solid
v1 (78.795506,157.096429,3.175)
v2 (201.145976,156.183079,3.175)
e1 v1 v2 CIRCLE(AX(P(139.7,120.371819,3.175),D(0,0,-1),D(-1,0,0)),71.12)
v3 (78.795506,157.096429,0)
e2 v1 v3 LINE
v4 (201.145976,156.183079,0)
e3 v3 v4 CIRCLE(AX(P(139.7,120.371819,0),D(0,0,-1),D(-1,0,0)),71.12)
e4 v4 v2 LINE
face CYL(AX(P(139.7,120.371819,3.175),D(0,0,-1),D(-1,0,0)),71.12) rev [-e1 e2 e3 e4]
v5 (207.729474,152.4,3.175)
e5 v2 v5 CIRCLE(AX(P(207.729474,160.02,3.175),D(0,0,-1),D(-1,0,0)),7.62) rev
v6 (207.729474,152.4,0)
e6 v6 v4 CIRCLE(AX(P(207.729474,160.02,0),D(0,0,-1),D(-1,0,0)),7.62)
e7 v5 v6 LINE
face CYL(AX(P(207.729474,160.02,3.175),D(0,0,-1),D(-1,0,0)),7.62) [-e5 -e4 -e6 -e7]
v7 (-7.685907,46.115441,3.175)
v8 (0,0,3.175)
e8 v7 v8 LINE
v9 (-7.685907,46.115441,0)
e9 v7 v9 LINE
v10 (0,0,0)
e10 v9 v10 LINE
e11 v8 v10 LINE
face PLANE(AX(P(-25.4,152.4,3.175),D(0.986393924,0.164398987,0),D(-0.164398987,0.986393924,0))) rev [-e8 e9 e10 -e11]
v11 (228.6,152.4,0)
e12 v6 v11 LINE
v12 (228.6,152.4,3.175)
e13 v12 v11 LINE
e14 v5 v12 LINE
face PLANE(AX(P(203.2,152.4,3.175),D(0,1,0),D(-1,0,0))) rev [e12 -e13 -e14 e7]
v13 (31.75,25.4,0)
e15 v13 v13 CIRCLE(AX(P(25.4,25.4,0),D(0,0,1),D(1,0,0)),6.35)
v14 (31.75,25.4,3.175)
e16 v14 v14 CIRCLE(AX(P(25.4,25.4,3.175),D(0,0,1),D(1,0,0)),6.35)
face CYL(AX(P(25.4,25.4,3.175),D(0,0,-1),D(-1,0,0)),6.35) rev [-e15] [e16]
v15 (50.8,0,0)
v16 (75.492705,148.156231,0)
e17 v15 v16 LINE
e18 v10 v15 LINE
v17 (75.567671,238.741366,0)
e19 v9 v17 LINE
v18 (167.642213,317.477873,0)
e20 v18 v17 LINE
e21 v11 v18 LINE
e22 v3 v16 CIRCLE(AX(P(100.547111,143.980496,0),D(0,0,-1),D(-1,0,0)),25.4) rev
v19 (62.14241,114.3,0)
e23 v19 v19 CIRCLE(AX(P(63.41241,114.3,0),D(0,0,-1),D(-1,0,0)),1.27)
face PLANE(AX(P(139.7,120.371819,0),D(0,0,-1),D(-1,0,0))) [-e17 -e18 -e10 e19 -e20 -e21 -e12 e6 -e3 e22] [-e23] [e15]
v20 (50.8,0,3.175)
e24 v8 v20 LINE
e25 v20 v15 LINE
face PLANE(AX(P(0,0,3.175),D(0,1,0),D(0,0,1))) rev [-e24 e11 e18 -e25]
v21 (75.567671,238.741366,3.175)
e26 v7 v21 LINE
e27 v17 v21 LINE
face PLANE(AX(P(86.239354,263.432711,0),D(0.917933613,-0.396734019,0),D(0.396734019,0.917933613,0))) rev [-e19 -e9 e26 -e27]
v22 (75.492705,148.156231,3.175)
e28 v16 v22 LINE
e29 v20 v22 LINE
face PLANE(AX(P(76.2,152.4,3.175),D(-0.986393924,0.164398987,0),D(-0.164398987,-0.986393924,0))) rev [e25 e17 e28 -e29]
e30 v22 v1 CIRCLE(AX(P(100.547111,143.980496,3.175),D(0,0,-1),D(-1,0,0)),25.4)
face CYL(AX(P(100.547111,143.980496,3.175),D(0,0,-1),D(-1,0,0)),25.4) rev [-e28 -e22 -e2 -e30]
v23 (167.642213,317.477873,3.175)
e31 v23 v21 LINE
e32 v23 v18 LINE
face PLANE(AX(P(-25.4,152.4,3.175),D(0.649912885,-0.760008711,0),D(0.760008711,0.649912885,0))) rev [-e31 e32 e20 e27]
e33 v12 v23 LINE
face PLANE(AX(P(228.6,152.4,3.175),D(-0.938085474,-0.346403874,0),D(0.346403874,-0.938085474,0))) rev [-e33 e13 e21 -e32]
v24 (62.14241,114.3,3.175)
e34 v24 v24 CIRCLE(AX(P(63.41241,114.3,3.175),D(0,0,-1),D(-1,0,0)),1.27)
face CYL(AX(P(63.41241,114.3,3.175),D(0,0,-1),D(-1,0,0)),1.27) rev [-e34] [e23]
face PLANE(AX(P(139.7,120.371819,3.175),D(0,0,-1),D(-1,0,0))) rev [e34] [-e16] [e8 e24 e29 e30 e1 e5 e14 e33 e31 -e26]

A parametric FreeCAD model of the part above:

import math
import FreeCAD as App
import Part
import Sketcher
Q = App.Units.Quantity


def edges_at(feature, points):
    """Names of the edges that pass closest to the given points."""
    edges = feature.Shape.Edges
    near = lambda p: min(range(len(edges)), key=lambda i: edges[i].distToShape(Part.Vertex(*p))[0])
    return sorted({f"Edge{near(p) + 1}" for p in points})

doc = App.newDocument("Part")
params = doc.addObject("Spreadsheet::Sheet", "Params")
for row, (alias, value) in enumerate([
    ("sketch1_diameter", "0.5 in"),
    ("sketch1_radius", "2.8 in"),
    ("sketch1_width", "2 in"),
    ("sketch1_width2", "1 in"),
    ("sketch1_length", "10 in"),
    ("pad1_length", "0.125 in"),
    ("fillet_radius", "0.3 in"),
    ("fillet2_radius", "1 in"),
    ("sketch3_diameter", "0.1 in"),
], start=1):
    params.set(f"A{row}", alias)
    params.set(f"B{row}", "=" + value)
    params.setAlias(f"B{row}", alias)

body = doc.addObject("PartDesign::Body", "Body")

# Sketch on XY plane
sketch1 = body.newObject("Sketcher::SketchObject", "Sketch")
sketch1.AttachmentSupport = (doc.getObject("XY_Plane"), [""])
sketch1.MapMode = "FlatFace"
sketch1.addGeometry(Part.LineSegment(App.Vector(0, 0, 0), App.Vector(51, 0, 0)), False)
sketch1.addGeometry(Part.LineSegment(App.Vector(51, 0, 0), App.Vector(76, 152, 0)), False)
sketch1.addGeometry(Part.ArcOfCircle(Part.Circle(App.Vector(140, 120, 0), App.Vector(0, 0, 1), 71), math.radians(27), math.radians(153)), False)
sketch1.addGeometry(Part.LineSegment(App.Vector(203, 152, 0), App.Vector(229, 152, 0)), False)
sketch1.addGeometry(Part.LineSegment(App.Vector(229, 152, 0), App.Vector(168, 317, 0)), False)
sketch1.addGeometry(Part.LineSegment(App.Vector(168, 317, 0), App.Vector(-25, 152, 0)), False)
sketch1.addGeometry(Part.LineSegment(App.Vector(-25, 152, 0), App.Vector(0, 0, 0)), False)
sketch1.addGeometry(Part.Circle(App.Vector(25, 25, 0), App.Vector(0, 0, 1), 6), False)
sketch1.addConstraint(Sketcher.Constraint("Coincident", 0, 2, 1, 1))
sketch1.addConstraint(Sketcher.Constraint("Coincident", 1, 2, 2, 2))
sketch1.addConstraint(Sketcher.Constraint("Coincident", 2, 1, 3, 1))
sketch1.addConstraint(Sketcher.Constraint("Coincident", 3, 2, 4, 1))
sketch1.addConstraint(Sketcher.Constraint("Coincident", 4, 2, 5, 1))
sketch1.addConstraint(Sketcher.Constraint("Coincident", 5, 2, 6, 1))
sketch1.addConstraint(Sketcher.Constraint("Coincident", 6, 2, 0, 1))
sketch1.addConstraint(Sketcher.Constraint("Horizontal", 0))
sketch1.addConstraint(Sketcher.Constraint("Horizontal", 3))
sketch1.addConstraint(Sketcher.Constraint("Coincident", 6, 2, -1, 1))
sketch1.addConstraint(Sketcher.Constraint("Horizontal", 1, 2, 2, 1))
sketch1.addConstraint(Sketcher.Constraint("Horizontal", 3, 2, 5, 2))
sketch1.addConstraint(Sketcher.Constraint("Equal", 1, 6))
sketch1.addConstraint(Sketcher.Constraint("Diameter", 7, Q("0.5 in")))
sketch1.addConstraint(Sketcher.Constraint("Radius", 2, Q("2.8 in")))
sketch1.addConstraint(Sketcher.Constraint("DistanceX", 0, 1, 0, 2, Q("2 in")))
sketch1.addConstraint(Sketcher.Constraint("DistanceX", 3, 1, 3, 2, Q("1 in")))
sketch1.addConstraint(Sketcher.Constraint("Distance", 5, Q("10 in")))
sketch1.addConstraint(Sketcher.Constraint("DistanceX", -1, 1, 7, 3, Q("1 in")))
sketch1.addConstraint(Sketcher.Constraint("DistanceY", -1, 1, 7, 3, Q("1 in")))
sketch1.addConstraint(Sketcher.Constraint("DistanceX", -1, 1, 1, 2, Q("3 in")))
sketch1.addConstraint(Sketcher.Constraint("DistanceY", -1, 1, 1, 2, Q("6 in")))
sketch1.addConstraint(Sketcher.Constraint("DistanceX", -1, 1, 2, 1, Q("8 in")))
sketch1.addConstraint(Sketcher.Constraint("Distance", 4, Q("175.973168 mm")))
sketch1.setExpression("Constraints[13]", "Params.sketch1_diameter")
sketch1.setExpression("Constraints[14]", "Params.sketch1_radius")
sketch1.setExpression("Constraints[15]", "Params.sketch1_width")
sketch1.setExpression("Constraints[16]", "Params.sketch1_width2")
sketch1.setExpression("Constraints[17]", "Params.sketch1_length")
pad1 = body.newObject("PartDesign::Pad", "Pad")
pad1.Profile = sketch1
pad1.setExpression("Length", "Params.pad1_length")

# Sketch on XY plane
sketch2 = body.newObject("Sketcher::SketchObject", "Sketch001")
sketch2.AttachmentSupport = (doc.getObject("XY_Plane"), [""])
sketch2.MapMode = "FlatFace"
sketch2.AttachmentOffset = App.Placement(App.Vector(0, 0, 0.125 * 25.4), App.Rotation())
sketch2.addGeometry(Part.LineSegment(App.Vector(-16, 26, 0), App.Vector(86, 263, 0)), False)
sketch2.addGeometry(Part.LineSegment(App.Vector(86, 263, 0), App.Vector(-107, 194, 0)), False)
sketch2.addGeometry(Part.LineSegment(App.Vector(-107, 194, 0), App.Vector(-16, 26, 0)), False)
sketch2.addConstraint(Sketcher.Constraint("Coincident", 0, 2, 1, 1))
sketch2.addConstraint(Sketcher.Constraint("Coincident", 1, 2, 2, 1))
sketch2.addConstraint(Sketcher.Constraint("Coincident", 2, 2, 0, 1))
sketch2.addConstraint(Sketcher.Constraint("DistanceY", -1, 1, 2, 2, Q("26.450399 mm")))
sketch2.addConstraint(Sketcher.Constraint("DistanceY", -1, 1, 0, 2, Q("263.432711 mm")))
sketch2.addConstraint(Sketcher.Constraint("DistanceY", -1, 1, 1, 2, Q("193.810789 mm")))
sketch2.addConstraint(Sketcher.Constraint("DistanceX", 1, 2, 0, 2, Q("193.468611 mm")))
sketch2.addConstraint(Sketcher.Constraint("DistanceX", 2, 2, 0, 2, Q("102.424559 mm")))
sketch2.addConstraint(Sketcher.Constraint("DistanceX", -1, 1, 0, 2, Q("86.239354 mm")))
pocket1 = body.newObject("PartDesign::Pocket", "Pocket")
pocket1.Profile = sketch2
pocket1.Type = "ThroughAll"
doc.recompute()

fillet = body.newObject("PartDesign::Fillet", "Fillet")
fillet.Base = (pocket1, edges_at(pocket1, [(203.2, 152.4, 1.587)]))
fillet.setExpression("Radius", "Params.fillet_radius")
doc.recompute()

fillet2 = body.newObject("PartDesign::Fillet", "Fillet001")
fillet2.Base = (fillet, edges_at(fillet, [(76.2, 152.4, 1.587)]))
fillet2.setExpression("Radius", "Params.fillet2_radius")

# Sketch on XY plane
sketch3 = body.newObject("Sketcher::SketchObject", "Sketch002")
sketch3.AttachmentSupport = (doc.getObject("XY_Plane"), [""])
sketch3.MapMode = "FlatFace"
sketch3.addGeometry(Part.Circle(App.Vector(63.4, 114.3, 0), App.Vector(0, 0, 1), 1.3), False)
sketch3.addConstraint(Sketcher.Constraint("Diameter", 0, Q("0.1 in")))
sketch3.addConstraint(Sketcher.Constraint("DistanceY", -1, 1, 0, 3, Q("4.5 in")))
sketch3.addConstraint(Sketcher.Constraint("DistanceX", -1, 1, 0, 3, Q("63.41241 mm")))
sketch3.setExpression("Constraints[0]", "Params.sketch3_diameter")
pocket2 = body.newObject("PartDesign::Pocket", "Pocket001")
pocket2.Profile = sketch3
pocket2.Type = "ThroughAll"
pocket2.Reversed = True

doc.recompute()
